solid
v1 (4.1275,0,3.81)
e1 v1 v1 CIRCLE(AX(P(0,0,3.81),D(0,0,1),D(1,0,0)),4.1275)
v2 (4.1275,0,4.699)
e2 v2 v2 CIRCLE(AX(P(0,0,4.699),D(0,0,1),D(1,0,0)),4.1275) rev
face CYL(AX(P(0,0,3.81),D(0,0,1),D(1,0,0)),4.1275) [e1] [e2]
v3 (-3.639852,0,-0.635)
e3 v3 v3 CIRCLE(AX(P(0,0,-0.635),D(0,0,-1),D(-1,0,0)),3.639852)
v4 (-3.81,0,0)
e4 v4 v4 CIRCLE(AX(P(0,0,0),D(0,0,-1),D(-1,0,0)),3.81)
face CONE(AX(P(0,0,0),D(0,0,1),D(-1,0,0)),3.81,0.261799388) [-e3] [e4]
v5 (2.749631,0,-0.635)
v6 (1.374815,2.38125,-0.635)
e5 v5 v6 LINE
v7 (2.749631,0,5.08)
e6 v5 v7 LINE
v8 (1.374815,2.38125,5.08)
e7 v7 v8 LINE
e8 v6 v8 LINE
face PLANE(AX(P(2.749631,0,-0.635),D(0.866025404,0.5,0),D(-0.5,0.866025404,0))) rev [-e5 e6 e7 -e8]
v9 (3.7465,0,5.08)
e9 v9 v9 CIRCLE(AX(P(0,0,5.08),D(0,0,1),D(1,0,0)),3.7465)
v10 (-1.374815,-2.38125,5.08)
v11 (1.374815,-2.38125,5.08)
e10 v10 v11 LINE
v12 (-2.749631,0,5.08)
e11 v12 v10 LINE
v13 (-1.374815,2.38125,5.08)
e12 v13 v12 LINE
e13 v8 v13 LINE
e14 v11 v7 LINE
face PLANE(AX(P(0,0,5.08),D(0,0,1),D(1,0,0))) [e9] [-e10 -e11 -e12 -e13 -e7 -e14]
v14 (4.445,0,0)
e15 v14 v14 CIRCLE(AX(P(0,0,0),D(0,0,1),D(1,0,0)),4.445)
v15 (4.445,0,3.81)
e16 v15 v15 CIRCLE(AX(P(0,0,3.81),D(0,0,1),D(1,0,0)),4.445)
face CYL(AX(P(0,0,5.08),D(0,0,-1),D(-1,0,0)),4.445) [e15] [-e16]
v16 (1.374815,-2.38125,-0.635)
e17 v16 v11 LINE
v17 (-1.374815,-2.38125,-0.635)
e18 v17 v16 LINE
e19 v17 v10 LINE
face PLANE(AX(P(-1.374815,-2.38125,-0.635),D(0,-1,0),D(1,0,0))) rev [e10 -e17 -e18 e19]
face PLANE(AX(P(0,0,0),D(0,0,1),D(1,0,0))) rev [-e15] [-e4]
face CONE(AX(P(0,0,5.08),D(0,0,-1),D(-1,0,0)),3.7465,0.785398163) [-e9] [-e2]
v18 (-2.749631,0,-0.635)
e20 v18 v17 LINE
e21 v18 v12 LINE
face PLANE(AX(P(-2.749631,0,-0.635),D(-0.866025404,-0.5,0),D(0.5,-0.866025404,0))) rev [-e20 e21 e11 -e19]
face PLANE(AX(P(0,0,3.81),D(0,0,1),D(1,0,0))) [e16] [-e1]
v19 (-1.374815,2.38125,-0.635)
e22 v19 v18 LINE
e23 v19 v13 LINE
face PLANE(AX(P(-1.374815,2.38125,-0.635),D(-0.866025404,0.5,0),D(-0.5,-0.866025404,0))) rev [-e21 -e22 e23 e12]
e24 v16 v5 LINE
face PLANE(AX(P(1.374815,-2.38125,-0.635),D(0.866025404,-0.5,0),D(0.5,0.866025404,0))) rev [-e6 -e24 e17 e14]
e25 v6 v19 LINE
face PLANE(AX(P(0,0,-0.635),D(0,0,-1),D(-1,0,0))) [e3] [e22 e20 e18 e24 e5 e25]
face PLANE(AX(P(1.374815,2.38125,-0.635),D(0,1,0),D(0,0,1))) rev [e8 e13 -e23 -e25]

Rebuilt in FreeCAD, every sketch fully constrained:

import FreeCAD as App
import Part
import Sketcher
Q = App.Units.Quantity


def edges_at(feature, points):
    """Names of the edges that pass closest to the given points."""
    edges = feature.Shape.Edges
    near = lambda p: min(range(len(edges)), key=lambda i: edges[i].distToShape(Part.Vertex(*p))[0])
    return sorted({f"Edge{near(p) + 1}" for p in points})


def add_polygon(sketch, points):
    """Adds a closed chain of lines whose ends are joined by coincident constraints."""
    first, n = sketch.GeometryCount, len(points)
    for a, b in zip(points, points[1:] + points[:1]):
        sketch.addGeometry(Part.LineSegment(App.Vector(*a, 0), App.Vector(*b, 0)), False)
    for i in range(n):
        sketch.addConstraint(Sketcher.Constraint("Coincident", first + i, 2, first + (i + 1) % n, 1))

doc = App.newDocument("Part")
body = doc.addObject("PartDesign::Body", "Body")

# Sketch on XY plane
sketch1 = body.newObject("Sketcher::SketchObject", "Sketch")
sketch1.AttachmentSupport = (doc.getObject("XY_Plane"), [""])
sketch1.MapMode = "FlatFace"
sketch1.addGeometry(Part.Circle(App.Vector(0, 0, 0), App.Vector(0, 0, 1), 4.4), False)
sketch1.addConstraint([
    Sketcher.Constraint("Coincident", 0, 3, -1, 1),
    Sketcher.Constraint("Diameter", 0, Q("0.35 in")),
])
pad1 = body.newObject("PartDesign::Pad", "Pad")
pad1.Profile = sketch1
pad1.Length = Q("0.2 in")

# Sketch on XY plane
sketch2 = body.newObject("Sketcher::SketchObject", "Sketch001")
sketch2.AttachmentSupport = (doc.getObject("XY_Plane"), [""])
sketch2.MapMode = "FlatFace"
sketch2.addGeometry(Part.Circle(App.Vector(0, 0, 0), App.Vector(0, 0, 1), 3.8), False)
sketch2.addConstraint([
    Sketcher.Constraint("Coincident", 0, 3, -1, 1),
    Sketcher.Constraint("Diameter", 0, Q("0.3 in")),
])
pad2 = body.newObject("PartDesign::Pad", "Pad001")
pad2.Profile = sketch2
pad2.Length = Q("0.025 in")
pad2.Reversed = True
pad2.TaperAngle = -15

# Sketch on XY plane
sketch3 = body.newObject("Sketcher::SketchObject", "Sketch002")
sketch3.AttachmentSupport = (doc.getObject("XY_Plane"), [""])
sketch3.MapMode = "FlatFace"
sketch3.AttachmentOffset = App.Placement(App.Vector(0, 0, 0.15 * 25.4), App.Rotation())
sketch3.addGeometry([
    Part.Circle(App.Vector(0, 0, 0), App.Vector(0, 0, 1), 4.4),
    Part.Circle(App.Vector(0, 0, 0), App.Vector(0, 0, 1), 4.1),
], False)
sketch3.addConstraint([
    Sketcher.Constraint("Coincident", 0, 3, -1, 1),
    Sketcher.Constraint("Coincident", 1, 3, -1, 1),
    Sketcher.Constraint("Diameter", 0, Q("0.35 in")),
    Sketcher.Constraint("Diameter", 1, Q("0.325 in")),
])
pocket1 = body.newObject("PartDesign::Pocket", "Pocket")
pocket1.Profile = sketch3
pocket1.Length = Q("0.05 in")
pocket1.Reversed = True
doc.recompute()

chamfer = body.newObject("PartDesign::Chamfer", "Chamfer")
chamfer.Base = (pocket1, edges_at(pocket1, [(-4.128, 0, 5.08)]))
chamfer.Size = Q("0.015 in")

# Sketch on XY plane
sketch4 = body.newObject("Sketcher::SketchObject", "Sketch003")
sketch4.AttachmentSupport = (doc.getObject("XY_Plane"), [""])
sketch4.MapMode = "FlatFace"
sketch4.AttachmentOffset = App.Placement(App.Vector(0, 0, 0.2 * 25.4), App.Rotation())
add_polygon(sketch4, [(-1.4, 2.4), (-2.7, 0), (-1.4, -2.4), (1.4, -2.4), (2.7, 0), (1.4, 2.4)])  # lines 0-5
sketch4.addConstraint([
    Sketcher.Constraint("Horizontal", 2),
    Sketcher.Constraint("Horizontal", 5),
    Sketcher.Constraint("Symmetric", 0, 2, 3, 2, -1, 1),
    Sketcher.Constraint("Symmetric", 1, 2, 4, 2, -1, 1),
    Sketcher.Constraint("PointOnObject", 0, 2, -1),
    Sketcher.Constraint("Parallel", 0, 3),
    Sketcher.Constraint("Vertical", 2, 2, 4, 2),
    Sketcher.Constraint("Angle", 0, Q("-120 deg")),
    Sketcher.Constraint("DistanceY", 1, 2, -1, 1, Q("0.09375 in")),
    Sketcher.Constraint("DistanceX", 2, 1, 2, 2, 2.749631),
])
pocket2 = body.newObject("PartDesign::Pocket", "Pocket001")
pocket2.Profile = sketch4
pocket2.Type = "ThroughAll"

doc.recompute()
